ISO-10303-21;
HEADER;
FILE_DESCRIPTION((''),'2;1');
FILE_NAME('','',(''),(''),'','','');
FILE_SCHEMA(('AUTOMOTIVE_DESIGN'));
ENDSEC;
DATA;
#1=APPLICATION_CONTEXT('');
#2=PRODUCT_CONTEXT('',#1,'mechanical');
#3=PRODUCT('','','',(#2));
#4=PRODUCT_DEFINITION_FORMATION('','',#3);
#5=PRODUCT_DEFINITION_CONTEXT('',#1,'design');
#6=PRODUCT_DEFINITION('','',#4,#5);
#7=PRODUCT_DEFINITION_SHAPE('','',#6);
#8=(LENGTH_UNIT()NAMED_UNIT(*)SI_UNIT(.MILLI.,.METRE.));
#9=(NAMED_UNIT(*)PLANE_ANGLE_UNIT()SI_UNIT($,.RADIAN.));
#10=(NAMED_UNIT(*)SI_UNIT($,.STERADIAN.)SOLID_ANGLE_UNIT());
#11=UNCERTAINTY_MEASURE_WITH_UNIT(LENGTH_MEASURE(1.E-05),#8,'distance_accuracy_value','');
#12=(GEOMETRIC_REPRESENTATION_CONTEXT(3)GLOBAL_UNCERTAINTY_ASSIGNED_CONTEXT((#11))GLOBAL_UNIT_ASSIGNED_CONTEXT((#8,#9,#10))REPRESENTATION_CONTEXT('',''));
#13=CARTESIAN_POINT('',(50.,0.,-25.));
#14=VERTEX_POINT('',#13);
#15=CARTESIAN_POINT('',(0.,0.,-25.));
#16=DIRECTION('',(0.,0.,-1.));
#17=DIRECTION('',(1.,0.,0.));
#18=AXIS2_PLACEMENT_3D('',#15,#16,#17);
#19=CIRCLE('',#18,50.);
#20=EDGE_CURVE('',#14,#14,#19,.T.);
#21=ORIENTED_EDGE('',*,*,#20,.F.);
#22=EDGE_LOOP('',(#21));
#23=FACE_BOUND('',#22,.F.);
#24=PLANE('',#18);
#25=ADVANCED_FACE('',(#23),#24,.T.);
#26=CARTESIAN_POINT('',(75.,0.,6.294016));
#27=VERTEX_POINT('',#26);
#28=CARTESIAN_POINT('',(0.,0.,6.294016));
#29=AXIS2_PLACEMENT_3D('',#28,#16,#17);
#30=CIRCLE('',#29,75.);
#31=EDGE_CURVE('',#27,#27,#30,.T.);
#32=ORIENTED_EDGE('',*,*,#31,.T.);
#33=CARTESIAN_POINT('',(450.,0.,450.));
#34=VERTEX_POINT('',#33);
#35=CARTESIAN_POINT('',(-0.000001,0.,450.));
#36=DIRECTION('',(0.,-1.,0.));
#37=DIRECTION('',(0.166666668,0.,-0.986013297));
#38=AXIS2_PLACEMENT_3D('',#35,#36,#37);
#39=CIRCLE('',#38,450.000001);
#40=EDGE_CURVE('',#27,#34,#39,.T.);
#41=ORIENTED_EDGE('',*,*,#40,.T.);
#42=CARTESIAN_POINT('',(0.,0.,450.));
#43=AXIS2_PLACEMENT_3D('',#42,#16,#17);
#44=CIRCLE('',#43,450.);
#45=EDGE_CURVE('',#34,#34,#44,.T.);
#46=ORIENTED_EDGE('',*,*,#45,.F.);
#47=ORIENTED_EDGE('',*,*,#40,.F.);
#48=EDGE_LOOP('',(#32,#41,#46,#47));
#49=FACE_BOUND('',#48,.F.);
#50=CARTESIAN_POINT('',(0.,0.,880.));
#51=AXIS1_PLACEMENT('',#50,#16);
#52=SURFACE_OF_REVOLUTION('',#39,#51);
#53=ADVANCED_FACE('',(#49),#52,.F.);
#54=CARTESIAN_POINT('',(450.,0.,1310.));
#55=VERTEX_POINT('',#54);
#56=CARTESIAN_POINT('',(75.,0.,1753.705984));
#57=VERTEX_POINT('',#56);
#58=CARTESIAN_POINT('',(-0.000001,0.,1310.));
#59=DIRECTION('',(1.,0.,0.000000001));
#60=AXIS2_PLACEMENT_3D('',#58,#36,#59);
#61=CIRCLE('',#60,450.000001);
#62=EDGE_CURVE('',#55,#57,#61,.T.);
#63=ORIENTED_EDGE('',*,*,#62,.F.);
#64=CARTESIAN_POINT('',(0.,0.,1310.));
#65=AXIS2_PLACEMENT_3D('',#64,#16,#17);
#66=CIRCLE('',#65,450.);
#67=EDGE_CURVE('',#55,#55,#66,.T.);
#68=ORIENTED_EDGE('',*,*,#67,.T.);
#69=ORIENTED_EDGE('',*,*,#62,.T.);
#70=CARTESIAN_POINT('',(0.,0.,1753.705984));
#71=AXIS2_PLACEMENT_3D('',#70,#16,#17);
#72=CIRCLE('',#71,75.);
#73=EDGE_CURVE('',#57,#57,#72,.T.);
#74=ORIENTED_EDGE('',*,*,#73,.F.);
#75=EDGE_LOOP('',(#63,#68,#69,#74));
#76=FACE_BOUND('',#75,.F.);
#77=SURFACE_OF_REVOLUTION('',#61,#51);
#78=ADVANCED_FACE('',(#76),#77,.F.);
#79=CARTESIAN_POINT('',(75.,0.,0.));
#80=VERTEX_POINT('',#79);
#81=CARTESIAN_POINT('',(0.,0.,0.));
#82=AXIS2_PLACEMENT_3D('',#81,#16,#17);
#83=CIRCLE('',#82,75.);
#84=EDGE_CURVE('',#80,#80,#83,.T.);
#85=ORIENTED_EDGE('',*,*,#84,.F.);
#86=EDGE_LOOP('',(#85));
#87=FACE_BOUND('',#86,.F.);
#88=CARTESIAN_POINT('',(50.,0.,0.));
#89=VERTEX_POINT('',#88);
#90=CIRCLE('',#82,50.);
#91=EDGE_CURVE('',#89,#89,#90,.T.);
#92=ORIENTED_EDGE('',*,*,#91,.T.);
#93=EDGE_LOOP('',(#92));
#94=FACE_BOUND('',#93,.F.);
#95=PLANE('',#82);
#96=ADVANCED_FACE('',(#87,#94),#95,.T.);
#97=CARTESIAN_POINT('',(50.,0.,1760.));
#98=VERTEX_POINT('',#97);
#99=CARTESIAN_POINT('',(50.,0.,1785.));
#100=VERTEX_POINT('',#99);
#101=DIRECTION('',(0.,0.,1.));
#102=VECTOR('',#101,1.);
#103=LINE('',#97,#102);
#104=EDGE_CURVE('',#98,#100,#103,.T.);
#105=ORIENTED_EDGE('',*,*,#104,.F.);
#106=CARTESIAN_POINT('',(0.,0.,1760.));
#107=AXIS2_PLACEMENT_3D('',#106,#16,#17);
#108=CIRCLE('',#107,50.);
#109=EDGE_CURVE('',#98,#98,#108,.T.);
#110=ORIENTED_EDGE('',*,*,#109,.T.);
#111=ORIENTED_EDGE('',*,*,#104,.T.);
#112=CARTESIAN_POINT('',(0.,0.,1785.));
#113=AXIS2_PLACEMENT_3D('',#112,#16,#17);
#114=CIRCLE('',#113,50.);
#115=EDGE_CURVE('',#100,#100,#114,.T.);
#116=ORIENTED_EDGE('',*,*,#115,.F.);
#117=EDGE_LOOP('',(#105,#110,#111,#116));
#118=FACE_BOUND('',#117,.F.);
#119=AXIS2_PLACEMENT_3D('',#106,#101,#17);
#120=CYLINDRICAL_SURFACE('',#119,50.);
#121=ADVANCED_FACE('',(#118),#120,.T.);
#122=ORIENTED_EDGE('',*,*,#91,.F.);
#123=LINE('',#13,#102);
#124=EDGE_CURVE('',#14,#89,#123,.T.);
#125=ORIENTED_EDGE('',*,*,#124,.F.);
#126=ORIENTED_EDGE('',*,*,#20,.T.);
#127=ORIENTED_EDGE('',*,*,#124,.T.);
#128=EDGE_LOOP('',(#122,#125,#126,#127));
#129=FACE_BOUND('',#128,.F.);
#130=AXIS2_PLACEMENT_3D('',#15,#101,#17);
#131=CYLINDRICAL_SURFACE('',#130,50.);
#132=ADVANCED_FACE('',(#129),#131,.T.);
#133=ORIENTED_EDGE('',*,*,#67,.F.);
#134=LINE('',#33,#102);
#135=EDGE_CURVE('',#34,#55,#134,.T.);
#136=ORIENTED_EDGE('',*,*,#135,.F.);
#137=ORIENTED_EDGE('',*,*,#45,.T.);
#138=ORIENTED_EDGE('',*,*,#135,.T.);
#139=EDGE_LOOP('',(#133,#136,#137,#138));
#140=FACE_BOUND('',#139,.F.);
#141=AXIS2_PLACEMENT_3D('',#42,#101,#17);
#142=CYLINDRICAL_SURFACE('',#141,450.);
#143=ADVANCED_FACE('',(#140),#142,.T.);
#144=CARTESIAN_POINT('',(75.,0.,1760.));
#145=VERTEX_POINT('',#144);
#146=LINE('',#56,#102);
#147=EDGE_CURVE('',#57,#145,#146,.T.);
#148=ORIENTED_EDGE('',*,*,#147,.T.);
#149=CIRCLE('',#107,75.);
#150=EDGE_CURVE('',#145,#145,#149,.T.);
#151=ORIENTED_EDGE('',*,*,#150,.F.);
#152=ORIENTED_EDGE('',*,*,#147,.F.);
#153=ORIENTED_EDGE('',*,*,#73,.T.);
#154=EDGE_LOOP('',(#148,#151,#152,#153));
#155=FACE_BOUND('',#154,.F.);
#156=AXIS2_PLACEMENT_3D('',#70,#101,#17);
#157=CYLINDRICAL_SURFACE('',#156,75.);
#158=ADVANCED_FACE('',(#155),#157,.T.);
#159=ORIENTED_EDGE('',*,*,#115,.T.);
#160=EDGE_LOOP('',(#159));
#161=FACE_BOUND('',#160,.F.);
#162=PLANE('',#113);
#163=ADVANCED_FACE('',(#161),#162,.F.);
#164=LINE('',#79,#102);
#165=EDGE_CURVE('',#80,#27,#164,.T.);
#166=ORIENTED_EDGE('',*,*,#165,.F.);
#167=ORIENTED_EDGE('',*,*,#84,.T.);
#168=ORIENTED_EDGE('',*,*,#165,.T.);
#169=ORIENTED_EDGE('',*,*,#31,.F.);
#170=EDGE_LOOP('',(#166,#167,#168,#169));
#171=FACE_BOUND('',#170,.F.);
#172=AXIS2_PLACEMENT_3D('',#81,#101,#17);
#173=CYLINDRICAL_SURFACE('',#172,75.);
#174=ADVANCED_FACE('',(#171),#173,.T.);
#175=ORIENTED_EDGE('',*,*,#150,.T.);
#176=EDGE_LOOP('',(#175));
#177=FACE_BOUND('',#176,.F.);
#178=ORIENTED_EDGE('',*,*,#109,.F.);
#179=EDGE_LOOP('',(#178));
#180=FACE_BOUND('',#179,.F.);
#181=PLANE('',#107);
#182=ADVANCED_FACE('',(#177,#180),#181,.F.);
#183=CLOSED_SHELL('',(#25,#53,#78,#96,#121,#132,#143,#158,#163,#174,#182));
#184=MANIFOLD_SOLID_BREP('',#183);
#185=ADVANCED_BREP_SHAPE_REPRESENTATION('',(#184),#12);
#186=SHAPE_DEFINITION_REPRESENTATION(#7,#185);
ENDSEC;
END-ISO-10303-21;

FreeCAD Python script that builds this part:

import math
import FreeCAD as App
import Part
import Sketcher

V = App.Vector

doc = App.newDocument("Part")
body = doc.addObject("PartDesign::Body", "Body")

sketch1 = body.newObject("Sketcher::SketchObject", "Sketch")
sketch1.AttachmentSupport = (doc.getObject("XZ_Plane"), [""])
sketch1.MapMode = "FlatFace"
sketch1.addGeometry([
    Part.LineSegment(V(75, 0, 0), V(75, 6.294016, 0)),
    Part.ArcOfCircle(Part.Circle(V(-0.000001, 450, 0), V(0, 0, 1), 450.000001), math.radians(-80.405932), math.radians(0)),
    Part.LineSegment(V(450, 450, 0), V(450, 1310, 0)),
    Part.ArcOfCircle(Part.Circle(V(-0.000001, 1310, 0), V(0, 0, 1), 450.000001), math.radians(0), math.radians(80.405932)),
    Part.LineSegment(V(75, 1753.705984, 0), V(75, 1760, 0)),
    Part.LineSegment(V(75, 1760, 0), V(50, 1760, 0)),
    Part.LineSegment(V(50, 1760, 0), V(50, 1785, 0)),
    Part.LineSegment(V(50, 1785, 0), V(0, 1785, 0)),
    Part.LineSegment(V(0, 1785, 0), V(0, -25, 0)),
    Part.LineSegment(V(0, -25, 0), V(50, -25, 0)),
    Part.LineSegment(V(50, -25, 0), V(50, 0, 0)),
    Part.LineSegment(V(50, 0, 0), V(75, 0, 0)),
], False)
sketch1.addConstraint([
    Sketcher.Constraint("Coincident", 0, 2, 1, 1),
    Sketcher.Constraint("Tangent", 1, 2, 2, 1),
    Sketcher.Constraint("Tangent", 2, 2, 3, 1),
    Sketcher.Constraint("Coincident", 3, 2, 4, 1),
    Sketcher.Constraint("Coincident", 4, 2, 5, 1),
    Sketcher.Constraint("Coincident", 5, 2, 6, 1),
    Sketcher.Constraint("Coincident", 6, 2, 7, 1),
    Sketcher.Constraint("Coincident", 7, 2, 8, 1),
    Sketcher.Constraint("Coincident", 8, 2, 9, 1),
    Sketcher.Constraint("Coincident", 9, 2, 10, 1),
    Sketcher.Constraint("Coincident", 10, 2, 11, 1),
    Sketcher.Constraint("Coincident", 11, 2, 0, 1),
    Sketcher.Constraint("Vertical", 0),
    Sketcher.Constraint("Vertical", 2),
    Sketcher.Constraint("Vertical", 4),
    Sketcher.Constraint("Horizontal", 5),
    Sketcher.Constraint("Vertical", 6),
    Sketcher.Constraint("Horizontal", 7),
    Sketcher.Constraint("Vertical", 8),
    Sketcher.Constraint("Horizontal", 9),
    Sketcher.Constraint("Vertical", 10),
    Sketcher.Constraint("Horizontal", 11),
    Sketcher.Constraint("Equal", 1, 3),
    Sketcher.Constraint("PointOnObject", 1, 3, -2),
    Sketcher.Constraint("PointOnObject", 7, 2, -2),
    Sketcher.Constraint("PointOnObject", 10, 2, -1),
    Sketcher.Constraint("Vertical", 6, 2, 9, 2),
    Sketcher.Constraint("Vertical", 4, 2, 11, 2),
    Sketcher.Constraint("Equal", 0, 4),
    Sketcher.Constraint("Equal", 11, 6),
    Sketcher.Constraint("Equal", 6, 10),
    Sketcher.Constraint("Radius", 1, 450.000001),
    Sketcher.Constraint("DistanceX", 5, 2, 5, 1, 25.0),
    Sketcher.Constraint("DistanceX", 7, 2, 7, 1, 50.0),
    Sketcher.Constraint("DistanceY", 2, 1, 2, 2, 860.0),
    Sketcher.Constraint("DistanceY", 8, 2, 8, 1, 1810.0),
])
revolution = body.newObject("PartDesign::Revolution", "Revolution")
revolution.Profile = sketch1
revolution.ReferenceAxis = (sketch1, ["V_Axis"])
revolution.Angle = 360

doc.recompute()
